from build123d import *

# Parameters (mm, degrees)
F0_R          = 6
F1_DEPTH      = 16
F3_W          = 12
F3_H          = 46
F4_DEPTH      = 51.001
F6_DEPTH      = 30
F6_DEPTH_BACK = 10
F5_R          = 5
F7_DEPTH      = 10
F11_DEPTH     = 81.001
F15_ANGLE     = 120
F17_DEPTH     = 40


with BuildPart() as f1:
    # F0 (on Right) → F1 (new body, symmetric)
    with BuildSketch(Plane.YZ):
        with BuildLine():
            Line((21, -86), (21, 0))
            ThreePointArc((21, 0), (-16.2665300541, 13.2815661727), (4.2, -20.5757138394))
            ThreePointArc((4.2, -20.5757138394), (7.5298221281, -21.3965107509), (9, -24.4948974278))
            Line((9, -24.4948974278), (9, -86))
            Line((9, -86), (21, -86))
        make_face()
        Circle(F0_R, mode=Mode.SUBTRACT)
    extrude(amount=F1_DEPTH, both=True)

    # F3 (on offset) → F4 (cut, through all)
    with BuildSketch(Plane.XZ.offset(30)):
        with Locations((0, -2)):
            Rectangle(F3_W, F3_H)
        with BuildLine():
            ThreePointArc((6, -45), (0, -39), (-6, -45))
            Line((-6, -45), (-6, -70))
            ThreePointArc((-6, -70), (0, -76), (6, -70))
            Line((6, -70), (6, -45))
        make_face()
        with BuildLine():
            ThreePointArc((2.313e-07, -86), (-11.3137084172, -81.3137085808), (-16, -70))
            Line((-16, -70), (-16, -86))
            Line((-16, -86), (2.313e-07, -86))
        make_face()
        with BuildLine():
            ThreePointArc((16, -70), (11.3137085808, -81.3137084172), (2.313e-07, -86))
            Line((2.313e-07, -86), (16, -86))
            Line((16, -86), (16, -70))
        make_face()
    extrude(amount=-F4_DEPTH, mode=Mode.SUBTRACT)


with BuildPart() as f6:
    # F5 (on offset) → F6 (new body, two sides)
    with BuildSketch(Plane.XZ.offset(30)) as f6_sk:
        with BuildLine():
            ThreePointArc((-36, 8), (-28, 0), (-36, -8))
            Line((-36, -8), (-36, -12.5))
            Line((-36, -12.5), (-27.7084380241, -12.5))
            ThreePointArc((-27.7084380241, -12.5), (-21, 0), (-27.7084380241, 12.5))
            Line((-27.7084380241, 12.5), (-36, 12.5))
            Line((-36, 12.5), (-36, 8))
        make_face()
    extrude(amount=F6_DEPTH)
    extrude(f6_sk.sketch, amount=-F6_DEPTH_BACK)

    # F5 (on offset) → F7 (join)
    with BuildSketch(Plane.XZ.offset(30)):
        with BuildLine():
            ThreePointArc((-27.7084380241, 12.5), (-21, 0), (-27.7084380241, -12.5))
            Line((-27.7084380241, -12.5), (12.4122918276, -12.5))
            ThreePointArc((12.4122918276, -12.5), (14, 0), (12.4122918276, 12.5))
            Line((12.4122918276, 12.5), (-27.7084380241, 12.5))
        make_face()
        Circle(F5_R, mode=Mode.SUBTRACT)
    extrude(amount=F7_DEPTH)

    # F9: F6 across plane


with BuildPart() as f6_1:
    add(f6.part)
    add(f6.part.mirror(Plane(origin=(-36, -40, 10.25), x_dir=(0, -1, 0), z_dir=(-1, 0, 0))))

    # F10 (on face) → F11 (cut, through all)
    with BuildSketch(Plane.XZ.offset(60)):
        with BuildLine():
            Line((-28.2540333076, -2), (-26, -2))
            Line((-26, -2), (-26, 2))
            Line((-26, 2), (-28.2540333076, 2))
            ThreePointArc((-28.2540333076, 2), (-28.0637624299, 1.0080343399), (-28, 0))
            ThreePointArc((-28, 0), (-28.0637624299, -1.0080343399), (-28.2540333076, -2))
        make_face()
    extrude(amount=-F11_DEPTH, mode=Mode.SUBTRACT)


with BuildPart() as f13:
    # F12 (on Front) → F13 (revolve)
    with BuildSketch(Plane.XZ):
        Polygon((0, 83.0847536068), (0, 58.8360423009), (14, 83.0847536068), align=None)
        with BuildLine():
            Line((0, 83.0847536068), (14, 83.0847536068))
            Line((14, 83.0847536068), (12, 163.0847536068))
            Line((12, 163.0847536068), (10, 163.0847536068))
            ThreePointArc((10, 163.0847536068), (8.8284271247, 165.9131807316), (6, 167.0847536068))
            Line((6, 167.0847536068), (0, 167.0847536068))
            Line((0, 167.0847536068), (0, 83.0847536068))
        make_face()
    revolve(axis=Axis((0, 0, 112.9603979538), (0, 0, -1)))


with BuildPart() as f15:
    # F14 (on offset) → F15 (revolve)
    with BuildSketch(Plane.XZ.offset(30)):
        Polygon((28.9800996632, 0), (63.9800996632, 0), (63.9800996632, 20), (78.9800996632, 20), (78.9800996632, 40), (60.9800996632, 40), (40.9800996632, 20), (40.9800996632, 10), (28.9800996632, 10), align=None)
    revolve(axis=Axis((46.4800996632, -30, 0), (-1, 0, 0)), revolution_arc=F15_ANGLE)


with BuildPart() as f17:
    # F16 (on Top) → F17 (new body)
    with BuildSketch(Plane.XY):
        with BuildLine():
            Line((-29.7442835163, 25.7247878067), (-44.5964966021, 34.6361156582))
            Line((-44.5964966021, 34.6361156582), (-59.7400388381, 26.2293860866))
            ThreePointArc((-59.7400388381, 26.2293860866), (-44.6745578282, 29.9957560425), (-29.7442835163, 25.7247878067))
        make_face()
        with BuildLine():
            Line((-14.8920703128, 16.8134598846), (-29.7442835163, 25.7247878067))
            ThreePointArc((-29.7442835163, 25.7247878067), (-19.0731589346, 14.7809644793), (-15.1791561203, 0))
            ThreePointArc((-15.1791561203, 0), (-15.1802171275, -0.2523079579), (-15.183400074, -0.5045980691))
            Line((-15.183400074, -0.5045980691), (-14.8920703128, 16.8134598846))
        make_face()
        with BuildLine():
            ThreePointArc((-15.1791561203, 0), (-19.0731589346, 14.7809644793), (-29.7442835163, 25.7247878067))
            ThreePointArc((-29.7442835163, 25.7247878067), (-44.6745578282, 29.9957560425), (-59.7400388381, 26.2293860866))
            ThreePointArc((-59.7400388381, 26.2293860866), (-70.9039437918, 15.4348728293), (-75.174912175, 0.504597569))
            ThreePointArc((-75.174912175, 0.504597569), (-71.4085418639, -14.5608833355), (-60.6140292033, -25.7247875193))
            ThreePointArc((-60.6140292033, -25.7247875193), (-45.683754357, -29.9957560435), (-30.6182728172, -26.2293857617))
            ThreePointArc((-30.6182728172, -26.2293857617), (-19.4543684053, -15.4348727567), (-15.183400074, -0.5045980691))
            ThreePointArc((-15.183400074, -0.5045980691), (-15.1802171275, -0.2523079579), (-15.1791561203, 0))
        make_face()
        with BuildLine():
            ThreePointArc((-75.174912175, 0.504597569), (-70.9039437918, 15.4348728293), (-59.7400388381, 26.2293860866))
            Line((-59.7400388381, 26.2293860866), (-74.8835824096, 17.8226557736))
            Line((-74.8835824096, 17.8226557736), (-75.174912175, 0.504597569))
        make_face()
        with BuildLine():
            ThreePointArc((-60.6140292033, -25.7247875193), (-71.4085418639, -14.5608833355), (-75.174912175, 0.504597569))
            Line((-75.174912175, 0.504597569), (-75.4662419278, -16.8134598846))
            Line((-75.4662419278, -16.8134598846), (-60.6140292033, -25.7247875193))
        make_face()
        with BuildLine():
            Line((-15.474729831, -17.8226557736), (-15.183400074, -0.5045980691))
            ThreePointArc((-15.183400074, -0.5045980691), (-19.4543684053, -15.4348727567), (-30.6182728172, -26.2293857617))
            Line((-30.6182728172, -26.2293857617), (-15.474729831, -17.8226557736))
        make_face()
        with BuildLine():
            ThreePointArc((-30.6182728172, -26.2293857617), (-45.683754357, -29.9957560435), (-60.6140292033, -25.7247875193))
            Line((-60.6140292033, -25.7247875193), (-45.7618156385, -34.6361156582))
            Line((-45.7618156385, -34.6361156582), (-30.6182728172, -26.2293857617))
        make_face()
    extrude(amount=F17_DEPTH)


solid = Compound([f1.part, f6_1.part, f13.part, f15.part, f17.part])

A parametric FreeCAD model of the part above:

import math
import FreeCAD as App
import Part
import Sketcher
Q = App.Units.Quantity

doc = App.newDocument("Part")
body = doc.addObject("PartDesign::Body", "Body")

sketch1 = body.newObject("Sketcher::SketchObject", "Sketch")
sketch1.AttachmentSupport = (doc.getObject("YZ_Plane"), [""])
sketch1.MapMode = "FlatFace"
sketch1.addGeometry([
    Part.LineSegment(App.Vector(21, -86, 0), App.Vector(21, 0, 0)),
    Part.ArcOfCircle(Part.Circle(App.Vector(0, 0, 0), App.Vector(0, 0, 1), 21), math.radians(0), math.radians(282)),
    Part.ArcOfCircle(Part.Circle(App.Vector(5, -24.5, 0), App.Vector(0, 0, 1), 4), math.radians(0), math.radians(102)),
    Part.LineSegment(App.Vector(9, -24.5, 0), App.Vector(9, -86, 0)),
    Part.LineSegment(App.Vector(9, -86, 0), App.Vector(21, -86, 0)),
    Part.Circle(App.Vector(0, 0, 0), App.Vector(0, 0, 1), 6),
], False)
sketch1.addConstraint([
    Sketcher.Constraint("Tangent", 0, 2, 1, 1),
    Sketcher.Constraint("Tangent", 1, 2, 2, 2),
    Sketcher.Constraint("Tangent", 2, 1, 3, 1),
    Sketcher.Constraint("Coincident", 3, 2, 4, 1),
    Sketcher.Constraint("Coincident", 4, 2, 0, 1),
    Sketcher.Constraint("Vertical", 0),
    Sketcher.Constraint("Vertical", 3),
    Sketcher.Constraint("Horizontal", 4),
    Sketcher.Constraint("Coincident", 1, 3, -1, 1),
    Sketcher.Constraint("Coincident", 5, 3, -1, 1),
    Sketcher.Constraint("Diameter", 5, Q("12 mm")),
    Sketcher.Constraint("Radius", 1, Q("21 mm")),
    Sketcher.Constraint("Radius", 2, Q("4 mm")),
    Sketcher.Constraint("DistanceX", 4, 1, 4, 2, Q("12 mm")),
    Sketcher.Constraint("DistanceY", 0, 1, 0, 2, Q("86 mm")),
])
pad1 = body.newObject("PartDesign::Pad", "Pad")
pad1.Profile = sketch1
pad1.Length = 32
pad1.Midplane = True

sketch2 = body.newObject("Sketcher::SketchObject", "Sketch001")
sketch2.AttachmentSupport = (doc.getObject("XZ_Plane"), [""])
sketch2.MapMode = "FlatFace"
sketch2.AttachmentOffset = App.Placement(App.Vector(0, 0, 30), App.Rotation())
sketch2.addGeometry([
    Part.LineSegment(App.Vector(-6, 21, 0), App.Vector(-6, -25, 0)),
    Part.LineSegment(App.Vector(-6, -25, 0), App.Vector(6, -25, 0)),
    Part.LineSegment(App.Vector(6, -25, 0), App.Vector(6, 21, 0)),
    Part.LineSegment(App.Vector(6, 21, 0), App.Vector(-6, 21, 0)),
    Part.ArcOfCircle(Part.Circle(App.Vector(0, -45, 0), App.Vector(0, 0, 1), 6), math.radians(0), math.radians(180)),
    Part.LineSegment(App.Vector(-6, -45, 0), App.Vector(-6, -70, 0)),
    Part.ArcOfCircle(Part.Circle(App.Vector(0, -70, 0), App.Vector(0, 0, 1), 6), math.radians(180), math.radians(360)),
    Part.LineSegment(App.Vector(6, -70, 0), App.Vector(6, -45, 0)),
    Part.ArcOfCircle(Part.Circle(App.Vector(0, -70, 0), App.Vector(0, 0, 1), 16), math.radians(180), math.radians(270)),
    Part.LineSegment(App.Vector(-16, -70, 0), App.Vector(-16, -86, 0)),
    Part.LineSegment(App.Vector(-16, -86, 0), App.Vector(0, -86, 0)),
    Part.ArcOfCircle(Part.Circle(App.Vector(0, -70, 0), App.Vector(0, 0, 1), 16), math.radians(-90), math.radians(0)),
    Part.LineSegment(App.Vector(0, -86, 0), App.Vector(16, -86, 0)),
    Part.LineSegment(App.Vector(16, -86, 0), App.Vector(16, -70, 0)),
], False)
sketch2.addConstraint([
    Sketcher.Constraint("Coincident", 0, 2, 1, 1),
    Sketcher.Constraint("Coincident", 1, 2, 2, 1),
    Sketcher.Constraint("Coincident", 2, 2, 3, 1),
    Sketcher.Constraint("Coincident", 3, 2, 0, 1),
    Sketcher.Constraint("Tangent", 4, 2, 5, 1),
    Sketcher.Constraint("Tangent", 5, 2, 6, 1),
    Sketcher.Constraint("Tangent", 6, 2, 7, 1),
    Sketcher.Constraint("Tangent", 7, 2, 4, 1),
    Sketcher.Constraint("Tangent", 8, 1, 9, 1),
    Sketcher.Constraint("Coincident", 9, 2, 10, 1),
    Sketcher.Constraint("Tangent", 10, 2, 8, 2),
    Sketcher.Constraint("Tangent", 11, 1, 12, 1),
    Sketcher.Constraint("Coincident", 12, 2, 13, 1),
    Sketcher.Constraint("Tangent", 13, 2, 11, 2),
    Sketcher.Constraint("Vertical", 0),
    Sketcher.Constraint("Horizontal", 1),
    Sketcher.Constraint("Vertical", 2),
    Sketcher.Constraint("Horizontal", 3),
    Sketcher.Constraint("Vertical", 5),
    Sketcher.Constraint("Vertical", 7),
    Sketcher.Constraint("Vertical", 9),
    Sketcher.Constraint("Horizontal", 10),
    Sketcher.Constraint("Horizontal", 12),
    Sketcher.Constraint("Vertical", 13),
    Sketcher.Constraint("Coincident", 8, 3, 6, 3),
    Sketcher.Constraint("Coincident", 11, 3, 6, 3),
    Sketcher.Constraint("Equal", 8, 11),
    Sketcher.Constraint("PointOnObject", 4, 3, -2),
    Sketcher.Constraint("Vertical", 3, 2, 4, 2),
    Sketcher.Constraint("Vertical", 2, 2, 6, 2),
    Sketcher.Constraint("Radius", 4, Q("6 mm")),
    Sketcher.Constraint("Radius", 8, Q("16 mm")),
    Sketcher.Constraint("DistanceY", 0, 2, 0, 1, Q("46 mm")),
    Sketcher.Constraint("DistanceY", 5, 2, 5, 1, Q("25 mm")),
    Sketcher.Constraint("DistanceY", 4, 3, -1, 1, Q("45 mm")),
    Sketcher.Constraint("DistanceY", 0, 2, -1, 1, Q("25 mm")),
])
pocket1 = body.newObject("PartDesign::Pocket", "Pocket")
pocket1.Profile = sketch2
pocket1.Type = "ThroughAll"
body2 = doc.addObject("PartDesign::Body", "Body001")

sketch3 = body2.newObject("Sketcher::SketchObject", "Sketch002")
sketch3.AttachmentSupport = (doc.getObject("XZ_Plane001"), [""])
sketch3.MapMode = "FlatFace"
sketch3.AttachmentOffset = App.Placement(App.Vector(0, 0, 30), App.Rotation())
sketch3.addGeometry([
    Part.ArcOfCircle(Part.Circle(App.Vector(-36, 0, 0), App.Vector(0, 0, 1), 8), math.radians(-90), math.radians(90)),
    Part.LineSegment(App.Vector(-36, -8, 0), App.Vector(-36, -12.5, 0)),
    Part.LineSegment(App.Vector(-36, -12.5, 0), App.Vector(-27.7, -12.5, 0)),
    Part.ArcOfCircle(Part.Circle(App.Vector(-36, 0, 0), App.Vector(0, 0, 1), 15), math.radians(-56), math.radians(56)),
    Part.LineSegment(App.Vector(-27.7, 12.5, 0), App.Vector(-36, 12.5, 0)),
    Part.LineSegment(App.Vector(-36, 12.5, 0), App.Vector(-36, 8, 0)),
], False)
sketch3.addConstraint([
    Sketcher.Constraint("Coincident", 0, 1, 1, 1),
    Sketcher.Constraint("Coincident", 1, 2, 2, 1),
    Sketcher.Constraint("Coincident", 2, 2, 3, 1),
    Sketcher.Constraint("Coincident", 3, 2, 4, 1),
    Sketcher.Constraint("Coincident", 4, 2, 5, 1),
    Sketcher.Constraint("Coincident", 5, 2, 0, 2),
    Sketcher.Constraint("Vertical", 1),
    Sketcher.Constraint("Horizontal", 2),
    Sketcher.Constraint("Horizontal", 4),
    Sketcher.Constraint("Vertical", 5),
    Sketcher.Constraint("Coincident", 3, 3, 0, 3),
    Sketcher.Constraint("Symmetric", 2, 2, 3, 2, -1),
    Sketcher.Constraint("Vertical", 3, 3, 0, 1),
    Sketcher.Constraint("Vertical", 1, 2, 4, 2),
    Sketcher.Constraint("Radius", 0, Q("8 mm")),
    Sketcher.Constraint("Radius", 3, Q("15 mm")),
    Sketcher.Constraint("DistanceY", 1, 2, 1, 1, Q("4.5 mm")),
    Sketcher.Constraint("DistanceX", 0, 3, -1, 1, Q("36 mm")),
])
pad2 = body2.newObject("PartDesign::Pad", "Pad001")
pad2.Profile = sketch3
pad2.Type = "TwoLengths"
pad2.Length = 30
pad2.Length2 = 10

sketch4 = body2.newObject("Sketcher::SketchObject", "Sketch003")
sketch4.AttachmentSupport = (doc.getObject("XZ_Plane001"), [""])
sketch4.MapMode = "FlatFace"
sketch4.AttachmentOffset = App.Placement(App.Vector(0, 0, 30), App.Rotation())
sketch4.addGeometry([
    Part.ArcOfCircle(Part.Circle(App.Vector(-36, 0, 0), App.Vector(0, 0, 1), 15), math.radians(-56), math.radians(56)),
    Part.LineSegment(App.Vector(-28, -12, 0), App.Vector(12, -12, 0)),
    Part.ArcOfCircle(Part.Circle(App.Vector(-36, 0, 0), App.Vector(0, 0, 1), 50), math.radians(-14), math.radians(14)),
    Part.LineSegment(App.Vector(12, 12, 0), App.Vector(-28, 12, 0)),
    Part.Circle(App.Vector(0, 0, 0), App.Vector(0, 0, 1), 5),
], False)
sketch4.addConstraint([
    Sketcher.Constraint("Coincident", 0, 1, 1, 1),
    Sketcher.Constraint("Coincident", 1, 2, 2, 1),
    Sketcher.Constraint("Coincident", 2, 2, 3, 1),
    Sketcher.Constraint("Coincident", 3, 2, 0, 2),
    Sketcher.Constraint("Horizontal", 1),
    Sketcher.Constraint("Horizontal", 3),
    Sketcher.Constraint("Coincident", 4, 3, -1, 1),
    Sketcher.Constraint("Coincident", 2, 3, 0, 3),
    Sketcher.Constraint("Symmetric", 1, 2, 2, 2, -1),
    Sketcher.Constraint("Diameter", 4, Q("10 mm")),
    Sketcher.Constraint("Radius", 0, Q("15 mm")),
    Sketcher.Constraint("Radius", 2, Q("50 mm")),
    Sketcher.Constraint("DistanceX", 0, 3, -1, 1, Q("36 mm")),
    Sketcher.Constraint("DistanceY", 1, 2, 2, 2, Q("25 mm")),
])
pad3 = body2.newObject("PartDesign::Pad", "Pad002")
pad3.Profile = sketch4
pad3.Length = 10
body3 = doc.addObject("PartDesign::Body", "Body002")
doc.recompute()

body3.BaseFeature = body2
doc.recompute()

mirroring = doc.addObject("Part::Mirroring", "Mirroring")
mirroring.Source = body2
mirroring.Base = App.Vector(-36, -40, 10.25)
mirroring.Normal = App.Vector(-1, 0, 0)
body4 = doc.addObject("PartDesign::Body", "Body003")
body4.BaseFeature = mirroring
boolean = body3.newObject("PartDesign::Boolean", "Boolean")
boolean.Type = "Fuse"
boolean.addObjects([body4])
doc.recompute()

sketch5 = body3.newObject("Sketcher::SketchObject", "Sketch004")
sketch5.AttachmentSupport = (doc.getObject("XZ_Plane002"), [""])
sketch5.MapMode = "FlatFace"
sketch5.AttachmentOffset = App.Placement(App.Vector(0, 0, 60), App.Rotation())
sketch5.addGeometry([
    Part.LineSegment(App.Vector(-28.3, -2, 0), App.Vector(-26, -2, 0)),
    Part.LineSegment(App.Vector(-26, -2, 0), App.Vector(-26, 2, 0)),
    Part.LineSegment(App.Vector(-26, 2, 0), App.Vector(-28.3, 2, 0)),
    Part.ArcOfCircle(Part.Circle(App.Vector(-36, 0, 0), App.Vector(0, 0, 1), 8), math.radians(0), math.radians(14.48)),
    Part.ArcOfCircle(Part.Circle(App.Vector(-36, 0, 0), App.Vector(0, 0, 1), 8), math.radians(-14.48), math.radians(0)),
], False)
sketch5.addConstraint([
    Sketcher.Constraint("Coincident", 0, 2, 1, 1),
    Sketcher.Constraint("Coincident", 1, 2, 2, 1),
    Sketcher.Constraint("Coincident", 2, 2, 3, 2),
    Sketcher.Constraint("Tangent", 3, 1, 4, 2),
    Sketcher.Constraint("Coincident", 4, 1, 0, 1),
    Sketcher.Constraint("Horizontal", 0),
    Sketcher.Constraint("Vertical", 1),
    Sketcher.Constraint("Horizontal", 2),
    Sketcher.Constraint("Equal", 3, 4),
    Sketcher.Constraint("Symmetric", 2, 2, 4, 1, -1),
    Sketcher.Constraint("PointOnObject", 3, 1, -1),
    Sketcher.Constraint("Radius", 3, Q("8 mm")),
    Sketcher.Constraint("DistanceY", 1, 1, 1, 2, Q("4 mm")),
    Sketcher.Constraint("DistanceX", 3, 3, -1, 1, Q("36 mm")),
    Sketcher.Constraint("DistanceX", 0, 2, -1, 1, Q("26 mm")),
])
pocket2 = body3.newObject("PartDesign::Pocket", "Pocket001")
pocket2.Profile = sketch5
pocket2.Type = "ThroughAll"
body5 = doc.addObject("PartDesign::Body", "Body004")

sketch6 = body5.newObject("Sketcher::SketchObject", "Sketch005")
sketch6.AttachmentSupport = (doc.getObject("XZ_Plane004"), [""])
sketch6.MapMode = "FlatFace"
sketch6.addGeometry([
    Part.LineSegment(App.Vector(0, 58.8, 0), App.Vector(14, 83.1, 0)),
    Part.LineSegment(App.Vector(14, 83.1, 0), App.Vector(12, 163.1, 0)),
    Part.LineSegment(App.Vector(12, 163.1, 0), App.Vector(10, 163.1, 0)),
    Part.ArcOfCircle(Part.Circle(App.Vector(6, 163.1, 0), App.Vector(0, 0, 1), 4), math.radians(0), math.radians(90)),
    Part.LineSegment(App.Vector(6, 167.1, 0), App.Vector(0, 167.1, 0)),
    Part.LineSegment(App.Vector(0, 167.1, 0), App.Vector(0, 58.8, 0)),
], False)
sketch6.addConstraint([
    Sketcher.Constraint("Coincident", 0, 2, 1, 1),
    Sketcher.Constraint("Coincident", 1, 2, 2, 1),
    Sketcher.Constraint("Coincident", 2, 2, 3, 1),
    Sketcher.Constraint("Tangent", 3, 2, 4, 1),
    Sketcher.Constraint("Coincident", 4, 2, 5, 1),
    Sketcher.Constraint("Coincident", 5, 2, 0, 1),
    Sketcher.Constraint("Horizontal", 2),
    Sketcher.Constraint("Horizontal", 4),
    Sketcher.Constraint("Vertical", 5),
    Sketcher.Constraint("PointOnObject", 4, 2, -2),
    Sketcher.Constraint("Horizontal", 3, 3, 1, 2),
    Sketcher.Constraint("Radius", 3, Q("4 mm")),
    Sketcher.Constraint("DistanceX", 2, 2, 2, 1, Q("2 mm")),
    Sketcher.Constraint("DistanceX", 4, 2, 4, 1, Q("6 mm")),
    Sketcher.Constraint("Angle", 0, Q("60 deg")),
    Sketcher.Constraint("Distance", 0, Q("28 mm")),
    Sketcher.Constraint("DistanceY", 0, 2, 3, 3, Q("80 mm")),
    Sketcher.Constraint("DistanceY", -1, 1, 3, 3, Q("163.084754 mm")),
])
revolution = body5.newObject("PartDesign::Revolution", "Revolution")
revolution.Profile = sketch6
revolution.ReferenceAxis = (sketch6, ["V_Axis"])
revolution.Angle = 360
body6 = doc.addObject("PartDesign::Body", "Body005")

sketch7 = body6.newObject("Sketcher::SketchObject", "Sketch006")
sketch7.AttachmentSupport = (doc.getObject("XZ_Plane005"), [""])
sketch7.MapMode = "FlatFace"
sketch7.AttachmentOffset = App.Placement(App.Vector(0, 0, 30), App.Rotation())
sketch7.addGeometry([
    Part.LineSegment(App.Vector(29, 0, 0), App.Vector(64, 0, 0)),
    Part.LineSegment(App.Vector(64, 0, 0), App.Vector(64, 20, 0)),
    Part.LineSegment(App.Vector(64, 20, 0), App.Vector(79, 20, 0)),
    Part.LineSegment(App.Vector(79, 20, 0), App.Vector(79, 40, 0)),
    Part.LineSegment(App.Vector(79, 40, 0), App.Vector(61, 40, 0)),
    Part.LineSegment(App.Vector(61, 40, 0), App.Vector(41, 20, 0)),
    Part.LineSegment(App.Vector(41, 20, 0), App.Vector(41, 10, 0)),
    Part.LineSegment(App.Vector(41, 10, 0), App.Vector(29, 10, 0)),
    Part.LineSegment(App.Vector(29, 10, 0), App.Vector(29, 0, 0)),
], False)
sketch7.addConstraint([
    Sketcher.Constraint("Coincident", 0, 2, 1, 1),
    Sketcher.Constraint("Coincident", 1, 2, 2, 1),
    Sketcher.Constraint("Coincident", 2, 2, 3, 1),
    Sketcher.Constraint("Coincident", 3, 2, 4, 1),
    Sketcher.Constraint("Coincident", 4, 2, 5, 1),
    Sketcher.Constraint("Coincident", 5, 2, 6, 1),
    Sketcher.Constraint("Coincident", 6, 2, 7, 1),
    Sketcher.Constraint("Coincident", 7, 2, 8, 1),
    Sketcher.Constraint("Coincident", 8, 2, 0, 1),
    Sketcher.Constraint("Horizontal", 0),
    Sketcher.Constraint("Vertical", 1),
    Sketcher.Constraint("Horizontal", 2),
    Sketcher.Constraint("Vertical", 3),
    Sketcher.Constraint("Horizontal", 4),
    Sketcher.Constraint("Vertical", 6),
    Sketcher.Constraint("Horizontal", 7),
    Sketcher.Constraint("Vertical", 8),
    Sketcher.Constraint("PointOnObject", 0, 2, -1),
    Sketcher.Constraint("Horizontal", 2, 2, 5, 2),
    Sketcher.Constraint("Equal", 1, 3),
    Sketcher.Constraint("Equal", 6, 8),
    Sketcher.Constraint("DistanceX", 0, 1, 0, 2, Q("35 mm")),
    Sketcher.Constraint("DistanceX", 2, 1, 2, 2, Q("15 mm")),
    Sketcher.Constraint("DistanceX", 4, 2, 4, 1, Q("18 mm")),
    Sketcher.Constraint("DistanceX", 7, 2, 7, 1, Q("12 mm")),
    Sketcher.Constraint("DistanceY", 1, 1, 1, 2, Q("20 mm")),
    Sketcher.Constraint("DistanceX", -1, 1, 0, 2, Q("63.9801 mm")),
])
revolution2 = body6.newObject("PartDesign::Revolution", "Revolution001")
revolution2.Profile = sketch7
revolution2.ReferenceAxis = (sketch7, ["H_Axis"])
revolution2.Angle = 120
revolution2.Reversed = True
body7 = doc.addObject("PartDesign::Body", "Body006")

sketch8 = body7.newObject("Sketcher::SketchObject", "Sketch007")
sketch8.AttachmentSupport = (doc.getObject("XY_Plane006"), [""])
sketch8.MapMode = "FlatFace"
sketch8.addGeometry([
    Part.LineSegment(App.Vector(-45, 35, 0), App.Vector(-75, 18, 0)),
    Part.LineSegment(App.Vector(-75, 18, 0), App.Vector(-75, 1, 0)),
    Part.LineSegment(App.Vector(-75, 1, 0), App.Vector(-75, -17, 0)),
    Part.LineSegment(App.Vector(-75, -17, 0), App.Vector(-46, -35, 0)),
    Part.LineSegment(App.Vector(-46, -35, 0), App.Vector(-31, -26, 0)),
    Part.LineSegment(App.Vector(-31, -26, 0), App.Vector(-15, -18, 0)),
    Part.LineSegment(App.Vector(-15, -18, 0), App.Vector(-15, 17, 0)),
    Part.LineSegment(App.Vector(-15, 17, 0), App.Vector(-45, 35, 0)),
], False)
sketch8.addConstraint([
    Sketcher.Constraint("Coincident", 0, 2, 1, 1),
    Sketcher.Constraint("Coincident", 1, 2, 2, 1),
    Sketcher.Constraint("Coincident", 2, 2, 3, 1),
    Sketcher.Constraint("Coincident", 3, 2, 4, 1),
    Sketcher.Constraint("Coincident", 4, 2, 5, 1),
    Sketcher.Constraint("Coincident", 5, 2, 6, 1),
    Sketcher.Constraint("Coincident", 6, 2, 7, 1),
    Sketcher.Constraint("Coincident", 7, 2, 0, 1),
    Sketcher.Constraint("Parallel", 1, 2),
    Sketcher.Constraint("Parallel", 0, 4),
    Sketcher.Constraint("Parallel", 4, 5),
    Sketcher.Constraint("Parallel", 2, 6),
    Sketcher.Constraint("Parallel", 3, 7),
    Sketcher.Constraint("Equal", 1, 2),
    Sketcher.Constraint("Equal", 0, 3),
    Sketcher.Constraint("Equal", 2, 4),
    Sketcher.Constraint("Equal", 4, 5),
    Sketcher.Constraint("Equal", 6, 7),
    Sketcher.Constraint("Distance", 1, Q("17.320508 mm")),
    Sketcher.Constraint("DistanceX", 2, 2, -1, 1, Q("75.466242 mm")),
    Sketcher.Constraint("DistanceY", 2, 2, -1, 1, Q("16.81346 mm")),
    Sketcher.Constraint("DistanceX", 5, 2, -1, 1, Q("15.47473 mm")),
    Sketcher.Constraint("DistanceX", 6, 2, -1, 1, Q("14.89207 mm")),
    Sketcher.Constraint("DistanceY", -1, 1, 6, 2, Q("16.81346 mm")),
])
pad4 = body7.newObject("PartDesign::Pad", "Pad003")
pad4.Profile = sketch8
pad4.Length = 40
mirroring.Visibility = False

doc.recompute()
